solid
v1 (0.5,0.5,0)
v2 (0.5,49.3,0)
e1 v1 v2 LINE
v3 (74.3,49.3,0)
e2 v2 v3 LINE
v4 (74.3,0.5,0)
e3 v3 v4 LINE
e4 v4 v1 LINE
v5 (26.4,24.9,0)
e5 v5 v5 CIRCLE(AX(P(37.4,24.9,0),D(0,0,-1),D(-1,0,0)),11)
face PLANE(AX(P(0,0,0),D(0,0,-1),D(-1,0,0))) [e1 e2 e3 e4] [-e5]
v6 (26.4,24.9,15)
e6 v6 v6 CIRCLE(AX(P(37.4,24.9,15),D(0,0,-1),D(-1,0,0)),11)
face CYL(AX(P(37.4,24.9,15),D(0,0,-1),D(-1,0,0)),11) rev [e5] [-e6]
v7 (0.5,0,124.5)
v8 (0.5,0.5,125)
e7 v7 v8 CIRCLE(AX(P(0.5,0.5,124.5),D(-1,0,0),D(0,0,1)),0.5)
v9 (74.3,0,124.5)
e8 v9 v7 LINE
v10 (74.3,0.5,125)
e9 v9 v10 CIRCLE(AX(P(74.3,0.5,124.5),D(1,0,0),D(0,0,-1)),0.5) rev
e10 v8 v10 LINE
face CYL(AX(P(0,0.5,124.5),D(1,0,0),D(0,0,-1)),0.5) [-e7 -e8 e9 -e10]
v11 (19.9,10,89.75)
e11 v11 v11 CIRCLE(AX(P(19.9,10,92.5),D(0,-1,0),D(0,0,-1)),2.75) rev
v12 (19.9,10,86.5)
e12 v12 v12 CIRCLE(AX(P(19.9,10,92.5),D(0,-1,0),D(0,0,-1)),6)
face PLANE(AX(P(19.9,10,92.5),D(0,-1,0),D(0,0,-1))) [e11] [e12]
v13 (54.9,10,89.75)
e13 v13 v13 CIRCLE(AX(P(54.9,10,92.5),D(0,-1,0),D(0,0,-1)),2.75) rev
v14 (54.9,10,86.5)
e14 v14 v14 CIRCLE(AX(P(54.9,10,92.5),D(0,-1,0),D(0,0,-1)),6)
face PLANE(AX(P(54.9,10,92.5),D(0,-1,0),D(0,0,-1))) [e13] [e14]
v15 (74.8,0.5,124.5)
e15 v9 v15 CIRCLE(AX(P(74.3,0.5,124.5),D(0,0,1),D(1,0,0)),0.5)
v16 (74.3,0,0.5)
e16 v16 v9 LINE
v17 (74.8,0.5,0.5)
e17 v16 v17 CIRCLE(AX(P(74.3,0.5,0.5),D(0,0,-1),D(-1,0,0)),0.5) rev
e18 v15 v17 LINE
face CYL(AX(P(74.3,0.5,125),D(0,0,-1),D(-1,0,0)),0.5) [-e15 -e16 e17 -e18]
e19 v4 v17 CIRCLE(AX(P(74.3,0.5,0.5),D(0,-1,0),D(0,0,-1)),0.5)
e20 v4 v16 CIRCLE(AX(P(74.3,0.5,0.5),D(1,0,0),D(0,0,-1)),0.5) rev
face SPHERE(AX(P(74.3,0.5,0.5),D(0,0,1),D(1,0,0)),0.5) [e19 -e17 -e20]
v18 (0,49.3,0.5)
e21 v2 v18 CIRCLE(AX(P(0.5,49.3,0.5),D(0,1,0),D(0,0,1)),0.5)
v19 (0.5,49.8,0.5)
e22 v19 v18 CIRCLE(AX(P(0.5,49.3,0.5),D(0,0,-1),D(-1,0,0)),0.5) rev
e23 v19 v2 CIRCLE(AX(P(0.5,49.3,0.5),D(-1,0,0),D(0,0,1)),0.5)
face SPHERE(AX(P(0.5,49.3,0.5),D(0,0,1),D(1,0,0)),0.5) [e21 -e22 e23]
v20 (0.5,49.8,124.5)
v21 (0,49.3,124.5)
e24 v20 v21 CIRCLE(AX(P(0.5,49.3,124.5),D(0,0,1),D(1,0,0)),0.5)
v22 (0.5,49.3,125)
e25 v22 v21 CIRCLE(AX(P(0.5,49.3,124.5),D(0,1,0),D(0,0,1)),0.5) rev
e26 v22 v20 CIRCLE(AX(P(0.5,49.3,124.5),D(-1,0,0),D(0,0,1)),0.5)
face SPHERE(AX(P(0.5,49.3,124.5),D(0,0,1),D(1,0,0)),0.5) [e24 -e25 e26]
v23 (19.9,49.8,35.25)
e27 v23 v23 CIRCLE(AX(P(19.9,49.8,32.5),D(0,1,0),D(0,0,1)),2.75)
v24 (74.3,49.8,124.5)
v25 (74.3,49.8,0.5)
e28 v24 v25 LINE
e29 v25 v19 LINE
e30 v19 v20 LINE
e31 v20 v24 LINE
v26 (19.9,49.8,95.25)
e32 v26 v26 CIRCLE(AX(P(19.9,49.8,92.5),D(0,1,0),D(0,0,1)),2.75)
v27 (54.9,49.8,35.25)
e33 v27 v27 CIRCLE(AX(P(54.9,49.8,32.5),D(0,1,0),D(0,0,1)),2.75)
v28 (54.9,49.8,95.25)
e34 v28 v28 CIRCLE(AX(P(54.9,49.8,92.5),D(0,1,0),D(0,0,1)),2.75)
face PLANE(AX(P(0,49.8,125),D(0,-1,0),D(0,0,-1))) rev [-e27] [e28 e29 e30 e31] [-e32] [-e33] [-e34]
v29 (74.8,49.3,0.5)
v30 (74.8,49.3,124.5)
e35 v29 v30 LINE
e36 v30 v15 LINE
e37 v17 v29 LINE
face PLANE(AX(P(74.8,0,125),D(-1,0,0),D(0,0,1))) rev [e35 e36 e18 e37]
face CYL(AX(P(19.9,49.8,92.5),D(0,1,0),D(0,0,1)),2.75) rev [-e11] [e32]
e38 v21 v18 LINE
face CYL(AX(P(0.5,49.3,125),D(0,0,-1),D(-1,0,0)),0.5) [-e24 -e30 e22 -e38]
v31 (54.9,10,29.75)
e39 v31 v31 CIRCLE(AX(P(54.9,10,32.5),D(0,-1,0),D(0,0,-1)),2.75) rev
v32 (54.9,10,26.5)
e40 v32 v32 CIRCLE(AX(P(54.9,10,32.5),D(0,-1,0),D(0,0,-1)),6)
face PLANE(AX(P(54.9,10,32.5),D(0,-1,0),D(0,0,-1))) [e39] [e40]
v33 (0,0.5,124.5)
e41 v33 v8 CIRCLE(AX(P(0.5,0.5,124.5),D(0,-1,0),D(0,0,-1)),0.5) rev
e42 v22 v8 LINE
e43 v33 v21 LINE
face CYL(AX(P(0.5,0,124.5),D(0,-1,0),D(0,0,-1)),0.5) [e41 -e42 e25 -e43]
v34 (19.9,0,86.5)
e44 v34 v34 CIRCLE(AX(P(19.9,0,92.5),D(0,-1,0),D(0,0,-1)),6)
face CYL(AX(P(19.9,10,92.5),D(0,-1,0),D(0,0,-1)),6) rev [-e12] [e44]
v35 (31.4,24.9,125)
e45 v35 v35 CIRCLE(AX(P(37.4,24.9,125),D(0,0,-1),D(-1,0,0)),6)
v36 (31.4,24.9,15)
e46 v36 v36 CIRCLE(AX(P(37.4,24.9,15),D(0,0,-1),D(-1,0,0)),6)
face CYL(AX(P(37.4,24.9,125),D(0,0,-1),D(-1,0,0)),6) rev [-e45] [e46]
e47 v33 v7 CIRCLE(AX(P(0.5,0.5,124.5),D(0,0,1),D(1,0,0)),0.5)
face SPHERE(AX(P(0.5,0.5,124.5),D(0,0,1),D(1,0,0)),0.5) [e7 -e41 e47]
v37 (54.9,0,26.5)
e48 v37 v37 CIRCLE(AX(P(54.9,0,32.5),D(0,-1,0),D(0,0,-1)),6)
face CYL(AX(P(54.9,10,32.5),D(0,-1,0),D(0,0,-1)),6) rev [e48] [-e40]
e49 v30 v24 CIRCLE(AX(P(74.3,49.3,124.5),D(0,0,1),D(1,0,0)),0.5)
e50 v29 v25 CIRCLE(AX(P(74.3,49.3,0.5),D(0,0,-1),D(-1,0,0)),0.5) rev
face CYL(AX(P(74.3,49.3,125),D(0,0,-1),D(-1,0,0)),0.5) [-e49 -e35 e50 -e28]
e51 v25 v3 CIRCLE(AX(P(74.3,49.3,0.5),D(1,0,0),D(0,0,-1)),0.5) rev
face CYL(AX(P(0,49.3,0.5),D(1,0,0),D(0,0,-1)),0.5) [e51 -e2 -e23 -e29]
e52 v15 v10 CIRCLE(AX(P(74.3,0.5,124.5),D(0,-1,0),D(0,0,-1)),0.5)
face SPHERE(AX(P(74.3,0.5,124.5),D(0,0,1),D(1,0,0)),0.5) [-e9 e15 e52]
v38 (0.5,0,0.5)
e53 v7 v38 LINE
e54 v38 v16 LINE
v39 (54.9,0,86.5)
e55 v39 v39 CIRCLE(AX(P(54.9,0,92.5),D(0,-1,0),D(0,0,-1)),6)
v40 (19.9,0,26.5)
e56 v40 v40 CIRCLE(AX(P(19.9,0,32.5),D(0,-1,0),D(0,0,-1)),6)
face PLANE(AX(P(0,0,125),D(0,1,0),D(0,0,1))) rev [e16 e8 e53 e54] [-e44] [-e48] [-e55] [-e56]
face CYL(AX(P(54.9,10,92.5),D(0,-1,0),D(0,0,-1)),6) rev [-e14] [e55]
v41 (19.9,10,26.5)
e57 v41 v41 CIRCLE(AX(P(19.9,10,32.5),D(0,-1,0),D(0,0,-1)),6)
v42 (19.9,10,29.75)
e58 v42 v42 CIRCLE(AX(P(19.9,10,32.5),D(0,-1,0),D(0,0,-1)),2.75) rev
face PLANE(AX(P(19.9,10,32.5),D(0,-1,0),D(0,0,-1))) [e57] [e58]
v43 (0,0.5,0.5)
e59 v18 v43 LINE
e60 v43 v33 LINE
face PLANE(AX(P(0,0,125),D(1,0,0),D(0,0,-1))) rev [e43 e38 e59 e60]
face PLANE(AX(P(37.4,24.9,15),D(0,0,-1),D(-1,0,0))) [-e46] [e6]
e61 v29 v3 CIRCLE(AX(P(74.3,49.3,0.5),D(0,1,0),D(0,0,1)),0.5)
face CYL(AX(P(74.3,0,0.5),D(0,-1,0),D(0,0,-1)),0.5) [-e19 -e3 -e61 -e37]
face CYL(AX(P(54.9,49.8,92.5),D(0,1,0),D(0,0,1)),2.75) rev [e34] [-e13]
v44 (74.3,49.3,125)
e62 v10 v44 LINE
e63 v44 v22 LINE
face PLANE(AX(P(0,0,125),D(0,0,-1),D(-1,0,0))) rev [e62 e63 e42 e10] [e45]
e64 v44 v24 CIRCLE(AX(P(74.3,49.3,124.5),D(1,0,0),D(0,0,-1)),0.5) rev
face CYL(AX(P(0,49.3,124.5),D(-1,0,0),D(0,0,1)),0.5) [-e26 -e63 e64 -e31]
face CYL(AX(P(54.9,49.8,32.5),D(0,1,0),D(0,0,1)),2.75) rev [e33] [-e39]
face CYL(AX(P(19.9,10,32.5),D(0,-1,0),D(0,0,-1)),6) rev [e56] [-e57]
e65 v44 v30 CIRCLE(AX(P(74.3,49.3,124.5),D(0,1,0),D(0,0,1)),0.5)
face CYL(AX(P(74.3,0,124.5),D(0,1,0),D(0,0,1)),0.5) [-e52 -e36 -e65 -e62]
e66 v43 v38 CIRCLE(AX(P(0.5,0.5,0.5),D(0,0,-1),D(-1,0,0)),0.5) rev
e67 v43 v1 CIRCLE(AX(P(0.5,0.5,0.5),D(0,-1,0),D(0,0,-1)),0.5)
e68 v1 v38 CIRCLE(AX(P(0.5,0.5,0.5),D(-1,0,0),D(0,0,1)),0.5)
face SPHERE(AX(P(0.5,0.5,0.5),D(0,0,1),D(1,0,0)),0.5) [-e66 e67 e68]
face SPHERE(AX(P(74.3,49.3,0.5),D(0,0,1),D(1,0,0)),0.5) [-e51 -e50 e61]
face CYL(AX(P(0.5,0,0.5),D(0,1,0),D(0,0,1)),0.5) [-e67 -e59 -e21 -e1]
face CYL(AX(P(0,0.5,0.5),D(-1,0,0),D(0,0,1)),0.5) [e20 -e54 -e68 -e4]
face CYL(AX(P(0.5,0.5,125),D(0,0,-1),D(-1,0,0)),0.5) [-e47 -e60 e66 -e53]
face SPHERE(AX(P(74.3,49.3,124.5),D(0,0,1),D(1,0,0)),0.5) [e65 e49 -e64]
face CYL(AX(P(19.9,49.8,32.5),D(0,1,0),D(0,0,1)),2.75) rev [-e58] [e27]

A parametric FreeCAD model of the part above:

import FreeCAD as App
import Part
import Sketcher

V = App.Vector
Q = App.Units.Quantity


def edges_at(feature, points):
    """Names of the edges that pass closest to the given points."""
    edges = feature.Shape.Edges
    near = lambda p: min(range(len(edges)), key=lambda i: edges[i].distToShape(Part.Vertex(*p))[0])
    return sorted({f"Edge{near(p) + 1}" for p in points})

doc = App.newDocument("Part")
body = doc.addObject("PartDesign::Body", "Body")

sketch1 = body.newObject("Sketcher::SketchObject", "Sketch")
sketch1.AttachmentSupport = (doc.getObject("XY_Plane"), [""])
sketch1.MapMode = "FlatFace"
sketch1.addGeometry([
    Part.LineSegment(V(0, 50, 0), V(0, 0, 0)),
    Part.LineSegment(V(0, 0, 0), V(75, 0, 0)),
    Part.LineSegment(V(75, 0, 0), V(75, 50, 0)),
    Part.LineSegment(V(75, 50, 0), V(0, 50, 0)),
], False)
sketch1.addConstraint([
    Sketcher.Constraint("Coincident", 0, 2, 1, 1),
    Sketcher.Constraint("Coincident", 1, 2, 2, 1),
    Sketcher.Constraint("Coincident", 2, 2, 3, 1),
    Sketcher.Constraint("Coincident", 3, 2, 0, 1),
    Sketcher.Constraint("Vertical", 0),
    Sketcher.Constraint("Horizontal", 1),
    Sketcher.Constraint("Vertical", 2),
    Sketcher.Constraint("Horizontal", 3),
    Sketcher.Constraint("Coincident", 0, 2, -1, 1),
    Sketcher.Constraint("DistanceX", 1, 1, 1, 2, Q("74.8 mm")),
    Sketcher.Constraint("DistanceY", 0, 2, 0, 1, Q("49.8 mm")),
])
pad1 = body.newObject("PartDesign::Pad", "Pad")
pad1.Profile = sketch1
pad1.Length = 125

sketch2 = body.newObject("Sketcher::SketchObject", "Sketch001")
sketch2.AttachmentSupport = (doc.getObject("XY_Plane"), [""])
sketch2.MapMode = "FlatFace"
sketch2.addGeometry(Part.Circle(V(37, 25, 0), V(0, 0, 1), 11), False)
sketch2.addConstraint([
    Sketcher.Constraint("Diameter", 0, Q("22 mm")),
    Sketcher.Constraint("DistanceX", -1, 1, 0, 3, Q("37.4 mm")),
    Sketcher.Constraint("DistanceY", -1, 1, 0, 3, Q("24.9 mm")),
])
pocket1 = body.newObject("PartDesign::Pocket", "Pocket")
pocket1.Profile = sketch2
pocket1.Length = 15
pocket1.Reversed = True

sketch3 = body.newObject("Sketcher::SketchObject", "Sketch002")
sketch3.AttachmentSupport = (doc.getObject("XY_Plane"), [""])
sketch3.MapMode = "FlatFace"
sketch3.AttachmentOffset = App.Placement(V(0, 0, 15), App.Rotation())
sketch3.addGeometry(Part.Circle(V(37, 25, 0), V(0, 0, 1), 6), False)
sketch3.addConstraint([
    Sketcher.Constraint("Diameter", 0, Q("12 mm")),
    Sketcher.Constraint("DistanceX", -1, 1, 0, 3, Q("37.4 mm")),
    Sketcher.Constraint("DistanceY", -1, 1, 0, 3, Q("24.9 mm")),
])
pocket2 = body.newObject("PartDesign::Pocket", "Pocket001")
pocket2.Profile = sketch3
pocket2.Type = "ThroughAll"
pocket2.Reversed = True
doc.recompute()

fillet = body.newObject("PartDesign::Fillet", "Fillet")
fillet.Base = (pocket2, edges_at(pocket2, [
    (74.8, 24.9, 125),
    (37.4, 49.8, 125),
    (0, 24.9, 125),
    (37.4, 49.8, 0),
    (74.8, 24.9, 0),
    (37.4, 0, 0),
    (0, 24.9, 0),
    (37.4, 0, 125),
    (0, 49.8, 62.5),
    (74.8, 49.8, 62.5),
    (74.8, 0, 62.5),
    (0, 0, 62.5),
]))
fillet.Radius = 0.5

sketch4 = body.newObject("Sketcher::SketchObject", "Sketch003")
sketch4.AttachmentSupport = (doc.getObject("XZ_Plane"), [""])
sketch4.MapMode = "FlatFace"
sketch4.AttachmentOffset = App.Placement(V(0, 0, -49.8), App.Rotation())
sketch4.addGeometry([
    Part.Circle(V(54.9, 92.5, 0), V(0, 0, 1), 2.8),
    Part.Circle(V(19.9, 32.5, 0), V(0, 0, 1), 2.8),
    Part.Circle(V(54.9, 32.5, 0), V(0, 0, 1), 2.8),
    Part.Circle(V(19.9, 92.5, 0), V(0, 0, 1), 2.8),
], False)
sketch4.addConstraint([
    Sketcher.Constraint("Equal", 0, 1),
    Sketcher.Constraint("Equal", 1, 2),
    Sketcher.Constraint("Equal", 2, 3),
    Sketcher.Constraint("Horizontal", 1, 3, 2, 3),
    Sketcher.Constraint("Horizontal", 0, 3, 3, 3),
    Sketcher.Constraint("Vertical", 0, 3, 2, 3),
    Sketcher.Constraint("Vertical", 1, 3, 3, 3),
    Sketcher.Constraint("Diameter", 0, Q("5.5 mm")),
    Sketcher.Constraint("DistanceX", 1, 3, 0, 3, Q("35 mm")),
    Sketcher.Constraint("DistanceY", 1, 3, 0, 3, Q("60 mm")),
    Sketcher.Constraint("DistanceX", -1, 1, 0, 3, Q("54.9 mm")),
    Sketcher.Constraint("DistanceY", -1, 1, 0, 3, Q("92.5 mm")),
])
doc.recompute()
hole = body.newObject("PartDesign::Hole", "Hole")
hole.Profile = sketch4
hole.ThreadType = "None"
hole.Diameter = 5.5
hole.DepthType = "ThroughAll"
hole.Reversed = True

sketch5 = body.newObject("Sketcher::SketchObject", "Sketch004")
sketch5.AttachmentSupport = (doc.getObject("XZ_Plane"), [""])
sketch5.MapMode = "FlatFace"
sketch5.addGeometry([
    Part.Circle(V(20, 92, 0), V(0, 0, 1), 6),
    Part.Circle(V(55, 92, 0), V(0, 0, 1), 6),
    Part.Circle(V(55, 32, 0), V(0, 0, 1), 6),
    Part.Circle(V(20, 32, 0), V(0, 0, 1), 6),
], False)
sketch5.addConstraint([
    Sketcher.Constraint("Equal", 0, 1),
    Sketcher.Constraint("Equal", 1, 2),
    Sketcher.Constraint("Equal", 2, 3),
    Sketcher.Constraint("Horizontal", 0, 3, 1, 3),
    Sketcher.Constraint("Horizontal", 2, 3, 3, 3),
    Sketcher.Constraint("Vertical", 1, 3, 2, 3),
    Sketcher.Constraint("Vertical", 0, 3, 3, 3),
    Sketcher.Constraint("Diameter", 0, Q("12 mm")),
    Sketcher.Constraint("DistanceX", 0, 3, 1, 3, Q("35 mm")),
    Sketcher.Constraint("DistanceY", 2, 3, 1, 3, Q("60 mm")),
    Sketcher.Constraint("DistanceX", -1, 1, 0, 3, Q("19.9 mm")),
    Sketcher.Constraint("DistanceY", -1, 1, 0, 3, Q("92.5 mm")),
])
pocket3 = body.newObject("PartDesign::Pocket", "Pocket002")
pocket3.Profile = sketch5
pocket3.Length = 10

doc.recompute()
